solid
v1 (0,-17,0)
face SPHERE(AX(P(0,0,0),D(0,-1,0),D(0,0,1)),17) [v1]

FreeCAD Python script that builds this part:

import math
import FreeCAD as App
import Part
import Sketcher

doc = App.newDocument("Part")
body = doc.addObject("PartDesign::Body", "Body")

# Sketch on YZ plane
sketch1 = body.newObject("Sketcher::SketchObject", "Sketch")
sketch1.AttachmentSupport = (doc.getObject("YZ_Plane"), [""])
sketch1.MapMode = "FlatFace"
sketch1.addGeometry([
    Part.LineSegment(App.Vector(-17, 0, 0), App.Vector(17, 0, 0)),
    Part.ArcOfCircle(Part.Circle(App.Vector(0, 0, 0), App.Vector(0, 0, 1), 17), math.radians(0), math.radians(180)),
], False)
sketch1.addConstraint([
    Sketcher.Constraint("Coincident", 0, 1, 1, 2),
    Sketcher.Constraint("Coincident", 1, 1, 0, 2),
    Sketcher.Constraint("Horizontal", 0),
    Sketcher.Constraint("Coincident", 1, 3, -1, 1),
    Sketcher.Constraint("PointOnObject", 0, 1, -1),
    Sketcher.Constraint("Radius", 1, 17.0),
])
revolution = body.newObject("PartDesign::Revolution", "Revolution")
revolution.Profile = sketch1
revolution.ReferenceAxis = (sketch1, ["H_Axis"])
revolution.Angle = 360

doc.recompute()
